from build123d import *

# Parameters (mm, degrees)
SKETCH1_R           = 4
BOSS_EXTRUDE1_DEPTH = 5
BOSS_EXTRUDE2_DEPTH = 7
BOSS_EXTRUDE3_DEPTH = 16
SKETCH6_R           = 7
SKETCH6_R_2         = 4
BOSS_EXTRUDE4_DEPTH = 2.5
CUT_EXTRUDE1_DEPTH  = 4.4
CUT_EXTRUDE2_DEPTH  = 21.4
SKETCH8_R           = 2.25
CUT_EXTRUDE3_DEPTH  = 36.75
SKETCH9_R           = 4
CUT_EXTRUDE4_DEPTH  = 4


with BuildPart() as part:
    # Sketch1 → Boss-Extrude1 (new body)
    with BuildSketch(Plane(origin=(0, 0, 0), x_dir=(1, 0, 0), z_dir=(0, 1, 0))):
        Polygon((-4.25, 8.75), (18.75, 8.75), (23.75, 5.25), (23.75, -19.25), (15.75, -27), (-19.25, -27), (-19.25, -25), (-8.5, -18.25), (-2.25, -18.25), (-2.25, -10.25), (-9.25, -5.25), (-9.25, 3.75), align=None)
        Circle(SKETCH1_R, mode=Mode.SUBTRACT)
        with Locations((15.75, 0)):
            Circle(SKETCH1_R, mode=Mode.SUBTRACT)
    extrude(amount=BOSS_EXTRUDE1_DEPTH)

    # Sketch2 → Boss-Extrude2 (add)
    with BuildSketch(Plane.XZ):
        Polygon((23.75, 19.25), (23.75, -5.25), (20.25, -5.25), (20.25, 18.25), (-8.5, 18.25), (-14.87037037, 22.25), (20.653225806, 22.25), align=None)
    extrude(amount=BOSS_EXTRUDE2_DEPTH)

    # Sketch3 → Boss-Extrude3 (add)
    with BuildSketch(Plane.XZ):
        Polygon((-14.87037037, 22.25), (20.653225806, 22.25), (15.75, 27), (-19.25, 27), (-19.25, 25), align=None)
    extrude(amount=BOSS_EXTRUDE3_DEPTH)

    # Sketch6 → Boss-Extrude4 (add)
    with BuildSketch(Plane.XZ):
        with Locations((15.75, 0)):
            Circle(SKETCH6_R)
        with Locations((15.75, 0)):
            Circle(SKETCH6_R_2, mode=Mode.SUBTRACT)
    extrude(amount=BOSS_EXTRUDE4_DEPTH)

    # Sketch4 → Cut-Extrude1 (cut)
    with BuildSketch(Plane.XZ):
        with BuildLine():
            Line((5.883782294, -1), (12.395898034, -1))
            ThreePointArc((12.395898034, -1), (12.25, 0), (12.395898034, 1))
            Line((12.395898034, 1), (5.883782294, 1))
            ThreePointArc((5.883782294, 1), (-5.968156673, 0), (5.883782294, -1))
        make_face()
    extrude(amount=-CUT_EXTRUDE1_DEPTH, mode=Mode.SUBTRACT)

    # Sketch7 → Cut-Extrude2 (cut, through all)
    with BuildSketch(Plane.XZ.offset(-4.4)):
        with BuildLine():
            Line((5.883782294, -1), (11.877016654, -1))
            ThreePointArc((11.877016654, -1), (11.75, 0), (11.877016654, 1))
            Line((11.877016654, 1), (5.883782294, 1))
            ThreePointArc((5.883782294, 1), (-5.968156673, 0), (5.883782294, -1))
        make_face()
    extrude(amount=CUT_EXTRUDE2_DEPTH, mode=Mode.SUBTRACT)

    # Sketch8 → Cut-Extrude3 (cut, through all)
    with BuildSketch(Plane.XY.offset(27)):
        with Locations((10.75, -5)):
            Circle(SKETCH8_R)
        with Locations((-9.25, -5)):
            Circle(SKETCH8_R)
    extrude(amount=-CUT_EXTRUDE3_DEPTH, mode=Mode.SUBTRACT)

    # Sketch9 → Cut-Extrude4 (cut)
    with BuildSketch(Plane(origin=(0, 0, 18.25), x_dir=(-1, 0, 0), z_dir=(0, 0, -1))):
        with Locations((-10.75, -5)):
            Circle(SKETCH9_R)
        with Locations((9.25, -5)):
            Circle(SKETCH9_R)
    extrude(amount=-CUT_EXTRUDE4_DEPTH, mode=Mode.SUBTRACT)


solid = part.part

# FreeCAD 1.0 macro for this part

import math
import FreeCAD as App
import Part
import Sketcher

V = App.Vector
Q = App.Units.Quantity

doc = App.newDocument("Part")
params = doc.addObject("Spreadsheet::Sheet", "Params")
for row, (alias, value) in enumerate([
    ("sketch1_diameter", "8 mm"),
    ("sketch1_width", "23 mm"),
    ("sketch1_width2", "35 mm"),
    ("sketch1_height", "9 mm"),
    ("sketch1_height2", "8 mm"),
    ("pad1_length", "5 mm"),
    ("sketch2_width", "3.5 mm"),
    ("sketch2_height", "24.5 mm"),
    ("sketch2_height2", "23.5 mm"),
    ("sketch2_width2", "28.75 mm"),
    ("pad2_length", "7 mm"),
    ("sketch3_width", "35 mm"),
    ("sketch3_height", "2 mm"),
    ("pad3_length", "16 mm"),
    ("sketch4_diameter", "14 mm"),
    ("sketch4_diameter2", "8 mm"),
    ("pad4_length", "2.5 mm"),
    ("sketch5_radius", "3.5 mm"),
    ("pocket1_length", "4.4 mm"),
    ("sketch6_radius", "4 mm"),
    ("sketch7_diameter", "4.5 mm"),
    ("sketch8_diameter", "8 mm"),
    ("pocket4_length", "4 mm"),
], start=1):
    params.set(f"A{row}", alias)
    params.set(f"B{row}", "=" + value)
    params.setAlias(f"B{row}", alias)

body = doc.addObject("PartDesign::Body", "Body")

# Sketch on XZ plane
sketch1 = doc.addObject("Sketcher::SketchObject", "Sketch")
body.addObject(sketch1)
sketch1.AttachmentSupport = (doc.XZ_Plane, [""])
sketch1.MapMode = "FlatFace"
sketch1.addGeometry([
    Part.LineSegment(V(18.8, -8.8, 0), V(-4.2, -8.8, 0)),  # 0
    Part.LineSegment(V(-4.2, -8.8, 0), V(-9.2, -3.8, 0)),  # 1
    Part.LineSegment(V(-9.2, -3.8, 0), V(-9.2, 5.2, 0)),  # 2
    Part.LineSegment(V(-9.2, 5.2, 0), V(-2.2, 10.2, 0)),  # 3
    Part.LineSegment(V(-2.2, 10.2, 0), V(-2.2, 18.2, 0)),  # 4
    Part.LineSegment(V(-2.2, 18.2, 0), V(-8.5, 18.2, 0)),  # 5
    Part.LineSegment(V(-8.5, 18.2, 0), V(-19.2, 25, 0)),  # 6
    Part.LineSegment(V(-19.2, 25, 0), V(-19.2, 27, 0)),  # 7
    Part.LineSegment(V(-19.2, 27, 0), V(15.8, 27, 0)),  # 8
    Part.LineSegment(V(15.8, 27, 0), V(23.8, 19.2, 0)),  # 9
    Part.LineSegment(V(23.8, 19.2, 0), V(23.8, -5.2, 0)),  # 10
    Part.LineSegment(V(23.8, -5.2, 0), V(18.8, -8.8, 0)),  # 11
    Part.Circle(V(15.8, 0, 0), V(0, 0, 1), 4),  # 12
    Part.Circle(V(0, 0, 0), V(0, 0, 1), 4),  # 13
], False)
sketch1.addConstraint([
    Sketcher.Constraint("Coincident", 0, 2, 1, 1),
    Sketcher.Constraint("Coincident", 1, 2, 2, 1),
    Sketcher.Constraint("Coincident", 2, 2, 3, 1),
    Sketcher.Constraint("Coincident", 3, 2, 4, 1),
    Sketcher.Constraint("Coincident", 4, 2, 5, 1),
    Sketcher.Constraint("Coincident", 5, 2, 6, 1),
    Sketcher.Constraint("Coincident", 6, 2, 7, 1),
    Sketcher.Constraint("Coincident", 7, 2, 8, 1),
    Sketcher.Constraint("Coincident", 8, 2, 9, 1),
    Sketcher.Constraint("Coincident", 9, 2, 10, 1),
    Sketcher.Constraint("Coincident", 10, 2, 11, 1),
    Sketcher.Constraint("Coincident", 11, 2, 0, 1),
    Sketcher.Constraint("Horizontal", 0),
    Sketcher.Constraint("Vertical", 2),
    Sketcher.Constraint("Vertical", 4),
    Sketcher.Constraint("Horizontal", 5),
    Sketcher.Constraint("Vertical", 7),
    Sketcher.Constraint("Horizontal", 8),
    Sketcher.Constraint("Vertical", 10),
    Sketcher.Constraint("Coincident", 13, 3, -1, 1),
    Sketcher.Constraint("Equal", 12, 13),
    Sketcher.Constraint("PointOnObject", 12, 3, -1),
    Sketcher.Constraint("Vertical", 12, 3, 8, 2),
    Sketcher.Constraint("Diameter", 12, 8.0),
    Sketcher.Constraint("DistanceX", 0, 2, 0, 1, 23.0),
    Sketcher.Constraint("DistanceX", 8, 1, 8, 2, 35.0),
    Sketcher.Constraint("DistanceY", 2, 1, 2, 2, 9.0),
    Sketcher.Constraint("DistanceY", 4, 1, 4, 2, 8.0),
    Sketcher.Constraint("DistanceY", 7, 1, 7, 2, 2.0),
    Sketcher.Constraint("Angle", 1, Q("135 deg")),
    Sketcher.Constraint("DistanceY", 10, 2, 10, 1, 24.5),
    Sketcher.Constraint("DistanceY", -1, 1, 6, 2, 25.0),
    Sketcher.Constraint("DistanceX", 0, 2, 12, 3, 20.0),
    Sketcher.Constraint("DistanceX", 1, 2, 0, 2, 5.0),
    Sketcher.Constraint("DistanceX", 2, 2, 3, 2, 7.0),
    Sketcher.Constraint("DistanceY", 2, 2, 3, 2, 5.0),
    Sketcher.Constraint("DistanceX", 8, 2, 9, 2, 8.0),
    Sketcher.Constraint("DistanceY", 4, 2, 9, 2, 1.0),
    Sketcher.Constraint("DistanceX", 5, 2, 5, 1, 6.25),
    Sketcher.Constraint("DistanceX", 5, 2, -1, 1, 8.5),
    Sketcher.Constraint("DistanceY", 0, 2, -1, 1, 8.75),
])
sketch1.setExpression("Constraints[23]", "Params.sketch1_diameter")
sketch1.setExpression("Constraints[24]", "Params.sketch1_width")
sketch1.setExpression("Constraints[25]", "Params.sketch1_width2")
sketch1.setExpression("Constraints[26]", "Params.sketch1_height")
sketch1.setExpression("Constraints[27]", "Params.sketch1_height2")
pad1 = doc.addObject("PartDesign::Pad", "Pad")
body.addObject(pad1)
pad1.Profile = sketch1
pad1.setExpression("Length", "Params.pad1_length")
pad1.Reversed = True

# Sketch on XZ plane
sketch2 = doc.addObject("Sketcher::SketchObject", "Sketch001")
body.addObject(sketch2)
sketch2.AttachmentSupport = (doc.XZ_Plane, [""])
sketch2.MapMode = "FlatFace"
sketch2.addGeometry([
    Part.LineSegment(V(23.8, -5.2, 0), V(23.8, 19.2, 0)),  # 0
    Part.LineSegment(V(23.8, 19.2, 0), V(20.7, 22.2, 0)),  # 1
    Part.LineSegment(V(20.7, 22.2, 0), V(-14.9, 22.2, 0)),  # 2
    Part.LineSegment(V(-14.9, 22.2, 0), V(-8.5, 18.2, 0)),  # 3
    Part.LineSegment(V(-8.5, 18.2, 0), V(20.2, 18.2, 0)),  # 4
    Part.LineSegment(V(20.2, 18.2, 0), V(20.2, -5.2, 0)),  # 5
    Part.LineSegment(V(20.2, -5.2, 0), V(23.8, -5.2, 0)),  # 6
], False)
sketch2.addConstraint([
    Sketcher.Constraint("Coincident", 0, 2, 1, 1),
    Sketcher.Constraint("Coincident", 1, 2, 2, 1),
    Sketcher.Constraint("Coincident", 2, 2, 3, 1),
    Sketcher.Constraint("Coincident", 3, 2, 4, 1),
    Sketcher.Constraint("Coincident", 4, 2, 5, 1),
    Sketcher.Constraint("Coincident", 5, 2, 6, 1),
    Sketcher.Constraint("Coincident", 6, 2, 0, 1),
    Sketcher.Constraint("Vertical", 0),
    Sketcher.Constraint("Horizontal", 2),
    Sketcher.Constraint("Horizontal", 4),
    Sketcher.Constraint("Vertical", 5),
    Sketcher.Constraint("Horizontal", 6),
    Sketcher.Constraint("DistanceX", 6, 1, 6, 2, 3.5),
    Sketcher.Constraint("DistanceY", 0, 1, 0, 2, 24.5),
    Sketcher.Constraint("DistanceY", 5, 2, 5, 1, 23.5),
    Sketcher.Constraint("DistanceY", 0, 2, 1, 2, 3.0),
    Sketcher.Constraint("DistanceX", 4, 1, 4, 2, 28.75),
    Sketcher.Constraint("DistanceX", 3, 2, -1, 1, 8.5),
    Sketcher.Constraint("DistanceY", -1, 1, 0, 2, 19.25),
    Sketcher.Constraint("DistanceX", 2, 2, 2, 1, 35.523596),
    Sketcher.Constraint("DistanceX", 2, 2, -1, 1, 14.87037),
])
sketch2.setExpression("Constraints[12]", "Params.sketch2_width")
sketch2.setExpression("Constraints[13]", "Params.sketch2_height")
sketch2.setExpression("Constraints[14]", "Params.sketch2_height2")
sketch2.setExpression("Constraints[16]", "Params.sketch2_width2")
pad2 = doc.addObject("PartDesign::Pad", "Pad001")
body.addObject(pad2)
pad2.Profile = sketch2
pad2.setExpression("Length", "Params.pad2_length")

# Sketch on XZ plane
sketch3 = doc.addObject("Sketcher::SketchObject", "Sketch002")
body.addObject(sketch3)
sketch3.AttachmentSupport = (doc.XZ_Plane, [""])
sketch3.MapMode = "FlatFace"
sketch3.addGeometry([
    Part.LineSegment(V(-14.9, 22.2, 0), V(20.7, 22.2, 0)),  # 0
    Part.LineSegment(V(20.7, 22.2, 0), V(15.8, 27, 0)),  # 1
    Part.LineSegment(V(15.8, 27, 0), V(-19.2, 27, 0)),  # 2
    Part.LineSegment(V(-19.2, 27, 0), V(-19.2, 25, 0)),  # 3
    Part.LineSegment(V(-19.2, 25, 0), V(-14.9, 22.2, 0)),  # 4
], False)
sketch3.addConstraint([
    Sketcher.Constraint("Coincident", 0, 2, 1, 1),
    Sketcher.Constraint("Coincident", 1, 2, 2, 1),
    Sketcher.Constraint("Coincident", 2, 2, 3, 1),
    Sketcher.Constraint("Coincident", 3, 2, 4, 1),
    Sketcher.Constraint("Coincident", 4, 2, 0, 1),
    Sketcher.Constraint("Horizontal", 0),
    Sketcher.Constraint("Horizontal", 2),
    Sketcher.Constraint("Vertical", 3),
    Sketcher.Constraint("DistanceX", 2, 2, 2, 1, 35.0),
    Sketcher.Constraint("DistanceY", 3, 2, 3, 1, 2.0),
    Sketcher.Constraint("DistanceY", -1, 1, 1, 2, 27.0),
    Sketcher.Constraint("DistanceY", -1, 1, 0, 2, 22.25),
    Sketcher.Constraint("DistanceX", -1, 1, 1, 2, 15.75),
    Sketcher.Constraint("Distance", 1, 6.826721),
    Sketcher.Constraint("DistanceX", 0, 1, 0, 2, 35.523596),
])
sketch3.setExpression("Constraints[8]", "Params.sketch3_width")
sketch3.setExpression("Constraints[9]", "Params.sketch3_height")
pad3 = doc.addObject("PartDesign::Pad", "Pad002")
body.addObject(pad3)
pad3.Profile = sketch3
pad3.setExpression("Length", "Params.pad3_length")

# Sketch on XZ plane
sketch4 = doc.addObject("Sketcher::SketchObject", "Sketch003")
body.addObject(sketch4)
sketch4.AttachmentSupport = (doc.XZ_Plane, [""])
sketch4.MapMode = "FlatFace"
sketch4.addGeometry([
    Part.Circle(V(15.8, 0, 0), V(0, 0, 1), 7),
    Part.Circle(V(15.8, 0, 0), V(0, 0, 1), 4),
], False)
sketch4.addConstraint([
    Sketcher.Constraint("Coincident", 1, 3, 0, 3),
    Sketcher.Constraint("PointOnObject", 0, 3, -1),
    Sketcher.Constraint("Diameter", 0, 14.0),
    Sketcher.Constraint("Diameter", 1, 8.0),
    Sketcher.Constraint("DistanceX", -1, 1, 0, 3, 15.75),
])
sketch4.setExpression("Constraints[2]", "Params.sketch4_diameter")
sketch4.setExpression("Constraints[3]", "Params.sketch4_diameter2")
pad4 = doc.addObject("PartDesign::Pad", "Pad003")
body.addObject(pad4)
pad4.Profile = sketch4
pad4.setExpression("Length", "Params.pad4_length")

# Sketch on XZ plane
sketch5 = doc.addObject("Sketcher::SketchObject", "Sketch004")
body.addObject(sketch5)
sketch5.AttachmentSupport = (doc.XZ_Plane, [""])
sketch5.MapMode = "FlatFace"
sketch5.addGeometry([
    Part.LineSegment(V(5.9, -1, 0), V(12.4, -1, 0)),
    Part.ArcOfCircle(Part.Circle(V(15.7, 0, 0), V(0, 0, 1), 3.5), math.radians(163), math.radians(197)),
    Part.LineSegment(V(12.4, 1, 0), V(5.9, 1, 0)),
    Part.ArcOfCircle(Part.Circle(V(0, 0, 0), V(0, 0, 1), 6), math.radians(10), math.radians(350)),
], False)
sketch5.addConstraint([
    Sketcher.Constraint("Coincident", 0, 2, 1, 2),
    Sketcher.Constraint("Coincident", 1, 1, 2, 1),
    Sketcher.Constraint("Coincident", 2, 2, 3, 1),
    Sketcher.Constraint("Coincident", 3, 2, 0, 1),
    Sketcher.Constraint("Horizontal", 0),
    Sketcher.Constraint("Horizontal", 2),
    Sketcher.Constraint("Coincident", 3, 3, -1, 1),
    Sketcher.Constraint("Symmetric", 0, 2, 1, 1, -1),
    Sketcher.Constraint("Radius", 1, 3.5),
    Sketcher.Constraint("DistanceY", 0, 2, -1, 1, 1.0),
    Sketcher.Constraint("DistanceX", -1, 1, 1, 3, 15.75),
    Sketcher.Constraint("Radius", 3, 5.968157),
])
sketch5.setExpression("Constraints[8]", "Params.sketch5_radius")
pocket1 = doc.addObject("PartDesign::Pocket", "Pocket")
body.addObject(pocket1)
pocket1.Profile = sketch5
pocket1.setExpression("Length", "Params.pocket1_length")

# Sketch on XZ plane
sketch6 = doc.addObject("Sketcher::SketchObject", "Sketch005")
body.addObject(sketch6)
sketch6.AttachmentSupport = (doc.XZ_Plane, [""])
sketch6.MapMode = "FlatFace"
sketch6.AttachmentOffset = App.Placement(V(0, 0, -4.4), App.Rotation())
sketch6.addGeometry([
    Part.LineSegment(V(5.9, -1, 0), V(11.9, -1, 0)),
    Part.ArcOfCircle(Part.Circle(V(15.7, 0, 0), V(0, 0, 1), 4), math.radians(166), math.radians(194)),
    Part.LineSegment(V(11.9, 1, 0), V(5.9, 1, 0)),
    Part.ArcOfCircle(Part.Circle(V(0, 0, 0), V(0, 0, 1), 6), math.radians(10), math.radians(350)),
], False)
sketch6.addConstraint([
    Sketcher.Constraint("Coincident", 0, 2, 1, 2),
    Sketcher.Constraint("Coincident", 1, 1, 2, 1),
    Sketcher.Constraint("Coincident", 2, 2, 3, 1),
    Sketcher.Constraint("Coincident", 3, 2, 0, 1),
    Sketcher.Constraint("Horizontal", 0),
    Sketcher.Constraint("Horizontal", 2),
    Sketcher.Constraint("Coincident", 3, 3, -1, 1),
    Sketcher.Constraint("Symmetric", 0, 2, 1, 1, -1),
    Sketcher.Constraint("Radius", 1, 4.0),
    Sketcher.Constraint("DistanceY", 0, 2, -1, 1, 1.0),
    Sketcher.Constraint("DistanceX", -1, 1, 1, 3, 15.75),
    Sketcher.Constraint("Radius", 3, 5.968157),
])
sketch6.setExpression("Constraints[8]", "Params.sketch6_radius")
pocket2 = doc.addObject("PartDesign::Pocket", "Pocket001")
body.addObject(pocket2)
pocket2.Profile = sketch6
pocket2.Type = "ThroughAll"
pocket2.Reversed = True

# Sketch on XY plane
sketch7 = doc.addObject("Sketcher::SketchObject", "Sketch006")
body.addObject(sketch7)
sketch7.AttachmentSupport = (doc.XY_Plane, [""])
sketch7.MapMode = "FlatFace"
sketch7.AttachmentOffset = App.Placement(V(0, 0, 27), App.Rotation())
sketch7.addGeometry([
    Part.Circle(V(10.8, -5, 0), V(0, 0, 1), 2.2),
    Part.Circle(V(-9.2, -5, 0), V(0, 0, 1), 2.2),
], False)
sketch7.addConstraint([
    Sketcher.Constraint("Equal", 0, 1),
    Sketcher.Constraint("Horizontal", 0, 3, 1, 3),
    Sketcher.Constraint("Diameter", 0, 4.5),
    Sketcher.Constraint("DistanceY", 0, 3, -1, 1, 5.0),
    Sketcher.Constraint("DistanceX", 1, 3, 0, 3, 20.0),
    Sketcher.Constraint("DistanceX", -1, 1, 0, 3, 10.75),
])
sketch7.setExpression("Constraints[2]", "Params.sketch7_diameter")
pocket3 = doc.addObject("PartDesign::Pocket", "Pocket002")
body.addObject(pocket3)
pocket3.Profile = sketch7
pocket3.Type = "ThroughAll"

# Sketch on XY plane
sketch8 = doc.addObject("Sketcher::SketchObject", "Sketch007")
body.addObject(sketch8)
sketch8.AttachmentSupport = (doc.XY_Plane, [""])
sketch8.MapMode = "FlatFace"
sketch8.AttachmentOffset = App.Placement(V(0, 0, 18.25), App.Rotation())
sketch8.addGeometry([
    Part.Circle(V(10.8, -5, 0), V(0, 0, 1), 4),
    Part.Circle(V(-9.2, -5, 0), V(0, 0, 1), 4),
], False)
sketch8.addConstraint([
    Sketcher.Constraint("Equal", 0, 1),
    Sketcher.Constraint("Horizontal", 0, 3, 1, 3),
    Sketcher.Constraint("Diameter", 0, 8.0),
    Sketcher.Constraint("DistanceY", 0, 3, -1, 1, 5.0),
    Sketcher.Constraint("DistanceX", 1, 3, 0, 3, 20.0),
    Sketcher.Constraint("DistanceX", -1, 1, 0, 3, 10.75),
])
sketch8.setExpression("Constraints[2]", "Params.sketch8_diameter")
pocket4 = doc.addObject("PartDesign::Pocket", "Pocket003")
body.addObject(pocket4)
pocket4.Profile = sketch8
pocket4.setExpression("Length", "Params.pocket4_length")
pocket4.Reversed = True

doc.recompute()
